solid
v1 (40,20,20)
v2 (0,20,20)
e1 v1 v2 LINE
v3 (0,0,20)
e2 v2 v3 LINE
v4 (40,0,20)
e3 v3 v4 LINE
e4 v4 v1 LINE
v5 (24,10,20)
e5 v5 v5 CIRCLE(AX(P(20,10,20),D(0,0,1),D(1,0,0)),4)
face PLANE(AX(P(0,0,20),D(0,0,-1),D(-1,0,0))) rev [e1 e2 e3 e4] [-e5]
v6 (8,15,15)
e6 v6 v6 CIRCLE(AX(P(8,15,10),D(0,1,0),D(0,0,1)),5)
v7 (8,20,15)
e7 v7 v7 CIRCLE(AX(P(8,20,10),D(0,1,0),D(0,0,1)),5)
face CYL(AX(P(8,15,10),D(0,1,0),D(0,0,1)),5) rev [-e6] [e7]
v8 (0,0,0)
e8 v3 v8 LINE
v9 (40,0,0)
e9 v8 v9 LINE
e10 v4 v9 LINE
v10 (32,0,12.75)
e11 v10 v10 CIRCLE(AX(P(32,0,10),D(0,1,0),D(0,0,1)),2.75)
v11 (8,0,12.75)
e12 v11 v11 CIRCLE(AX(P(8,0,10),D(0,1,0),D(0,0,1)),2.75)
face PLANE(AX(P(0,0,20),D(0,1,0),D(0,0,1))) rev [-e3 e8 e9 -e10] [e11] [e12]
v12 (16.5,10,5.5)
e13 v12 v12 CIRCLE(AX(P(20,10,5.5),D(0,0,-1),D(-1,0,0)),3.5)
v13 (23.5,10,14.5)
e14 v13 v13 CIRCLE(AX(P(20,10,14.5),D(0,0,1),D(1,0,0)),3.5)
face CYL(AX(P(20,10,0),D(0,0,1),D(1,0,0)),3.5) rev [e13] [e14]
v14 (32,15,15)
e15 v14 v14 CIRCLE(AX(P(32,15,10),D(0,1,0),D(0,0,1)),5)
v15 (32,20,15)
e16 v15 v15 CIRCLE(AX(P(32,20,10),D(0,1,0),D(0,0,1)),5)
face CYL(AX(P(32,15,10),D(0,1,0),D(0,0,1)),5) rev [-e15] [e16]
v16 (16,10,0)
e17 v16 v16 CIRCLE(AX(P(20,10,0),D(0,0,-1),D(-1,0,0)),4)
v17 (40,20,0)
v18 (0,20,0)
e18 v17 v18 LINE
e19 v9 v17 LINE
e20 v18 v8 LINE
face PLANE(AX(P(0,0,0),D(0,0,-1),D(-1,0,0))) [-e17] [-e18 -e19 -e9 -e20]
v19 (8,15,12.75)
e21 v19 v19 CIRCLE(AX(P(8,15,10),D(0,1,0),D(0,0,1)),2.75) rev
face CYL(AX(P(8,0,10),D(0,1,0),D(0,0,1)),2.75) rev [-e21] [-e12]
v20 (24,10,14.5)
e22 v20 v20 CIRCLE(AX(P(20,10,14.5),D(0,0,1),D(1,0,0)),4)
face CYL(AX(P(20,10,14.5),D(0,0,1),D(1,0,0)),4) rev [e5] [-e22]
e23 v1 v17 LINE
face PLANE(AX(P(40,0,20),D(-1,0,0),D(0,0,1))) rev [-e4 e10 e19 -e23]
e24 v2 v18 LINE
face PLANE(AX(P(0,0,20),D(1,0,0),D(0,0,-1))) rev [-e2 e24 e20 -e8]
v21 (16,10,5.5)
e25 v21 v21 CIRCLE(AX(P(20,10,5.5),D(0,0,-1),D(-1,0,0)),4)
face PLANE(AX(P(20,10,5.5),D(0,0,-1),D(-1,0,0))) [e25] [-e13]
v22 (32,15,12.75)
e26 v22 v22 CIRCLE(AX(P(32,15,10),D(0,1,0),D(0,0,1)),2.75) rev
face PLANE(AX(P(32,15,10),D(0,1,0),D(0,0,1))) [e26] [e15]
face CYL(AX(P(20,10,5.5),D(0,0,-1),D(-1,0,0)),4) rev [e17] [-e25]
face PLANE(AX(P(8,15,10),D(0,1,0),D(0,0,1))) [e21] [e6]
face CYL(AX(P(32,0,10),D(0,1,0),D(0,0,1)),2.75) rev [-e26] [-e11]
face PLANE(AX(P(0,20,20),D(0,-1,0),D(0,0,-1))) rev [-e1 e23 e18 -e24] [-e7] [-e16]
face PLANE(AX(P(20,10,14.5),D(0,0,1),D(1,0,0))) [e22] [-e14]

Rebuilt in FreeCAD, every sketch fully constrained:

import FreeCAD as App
import Part
import Sketcher
from FreeCAD import Vector
Q = App.Units.Quantity


def add_polygon(sketch, points):
    """Adds a closed chain of lines whose ends are joined by coincident constraints."""
    first, n = sketch.GeometryCount, len(points)
    for a, b in zip(points, points[1:] + points[:1]):
        sketch.addGeometry(Part.LineSegment(App.Vector(*a, 0), App.Vector(*b, 0)), False)
    for i in range(n):
        sketch.addConstraint(Sketcher.Constraint("Coincident", first + i, 2, first + (i + 1) % n, 1))

doc = App.newDocument("Part")
body = doc.addObject("PartDesign::Body", "Body")

sketch1 = body.newObject("Sketcher::SketchObject", "Sketch")
sketch1.AttachmentSupport = (doc.getObject("XY_Plane"), [""])
sketch1.MapMode = "FlatFace"
add_polygon(sketch1, [(0, 20), (0, 0), (40, 0), (40, 20)])
sketch1.addConstraint(Sketcher.Constraint("Vertical", 0))
sketch1.addConstraint(Sketcher.Constraint("Horizontal", 1))
sketch1.addConstraint(Sketcher.Constraint("Vertical", 2))
sketch1.addConstraint(Sketcher.Constraint("Horizontal", 3))
sketch1.addConstraint(Sketcher.Constraint("Coincident", 0, 2, -1, 1))
sketch1.addConstraint(Sketcher.Constraint("DistanceX", 1, 1, 1, 2, Q("40 mm")))
sketch1.addConstraint(Sketcher.Constraint("DistanceY", 0, 2, 0, 1, Q("20 mm")))
pad1 = body.newObject("PartDesign::Pad", "Pad")
pad1.Profile = sketch1
pad1.Length = 20

sketch2 = body.newObject("Sketcher::SketchObject", "Sketch001")
sketch2.AttachmentSupport = (doc.getObject("XZ_Plane"), [""])
sketch2.MapMode = "FlatFace"
sketch2.AttachmentOffset = App.Placement(Vector(0, 0, -20), App.Rotation())
sketch2.addGeometry(Part.Circle(Vector(8, 10, 0), Vector(0, 0, 1), 2.8), False)
sketch2.addGeometry(Part.Circle(Vector(32, 10, 0), Vector(0, 0, 1), 2.8), False)
sketch2.addConstraint(Sketcher.Constraint("Equal", 0, 1))
sketch2.addConstraint(Sketcher.Constraint("Horizontal", 0, 3, 1, 3))
sketch2.addConstraint(Sketcher.Constraint("Diameter", 0, Q("5.5 mm")))
sketch2.addConstraint(Sketcher.Constraint("DistanceX", -1, 1, 0, 3, Q("8 mm")))
sketch2.addConstraint(Sketcher.Constraint("DistanceY", -1, 1, 0, 3, Q("10 mm")))
sketch2.addConstraint(Sketcher.Constraint("DistanceX", -1, 1, 1, 3, Q("32 mm")))
pocket1 = body.newObject("PartDesign::Pocket", "Pocket")
pocket1.Profile = sketch2
pocket1.Type = "ThroughAll"
pocket1.Reversed = True

sketch3 = body.newObject("Sketcher::SketchObject", "Sketch002")
sketch3.AttachmentSupport = (doc.getObject("XZ_Plane"), [""])
sketch3.MapMode = "FlatFace"
sketch3.AttachmentOffset = App.Placement(Vector(0, 0, -20), App.Rotation())
sketch3.addGeometry(Part.Circle(Vector(8, 10, 0), Vector(0, 0, 1), 5), False)
sketch3.addGeometry(Part.Circle(Vector(32, 10, 0), Vector(0, 0, 1), 5), False)
sketch3.addConstraint(Sketcher.Constraint("Equal", 0, 1))
sketch3.addConstraint(Sketcher.Constraint("Horizontal", 0, 3, 1, 3))
sketch3.addConstraint(Sketcher.Constraint("Diameter", 0, Q("10 mm")))
sketch3.addConstraint(Sketcher.Constraint("DistanceX", -1, 1, 0, 3, Q("8 mm")))
sketch3.addConstraint(Sketcher.Constraint("DistanceY", -1, 1, 0, 3, Q("10 mm")))
sketch3.addConstraint(Sketcher.Constraint("DistanceX", -1, 1, 1, 3, Q("32 mm")))
pocket2 = body.newObject("PartDesign::Pocket", "Pocket001")
pocket2.Profile = sketch3
pocket2.Length = 5
pocket2.Reversed = True

sketch4 = body.newObject("Sketcher::SketchObject", "Sketch003")
sketch4.AttachmentSupport = (doc.getObject("XY_Plane"), [""])
sketch4.MapMode = "FlatFace"
sketch4.AttachmentOffset = App.Placement(Vector(0, 0, 20), App.Rotation())
sketch4.addGeometry(Part.Circle(Vector(20, 10, 0), Vector(0, 0, 1), 4), False)
sketch4.addConstraint(Sketcher.Constraint("Diameter", 0, Q("8 mm")))
sketch4.addConstraint(Sketcher.Constraint("DistanceX", -1, 1, 0, 3, Q("20 mm")))
sketch4.addConstraint(Sketcher.Constraint("DistanceY", -1, 1, 0, 3, Q("10 mm")))
pocket3 = body.newObject("PartDesign::Pocket", "Pocket002")
pocket3.Profile = sketch4
pocket3.Length = 5.5

sketch5 = body.newObject("Sketcher::SketchObject", "Sketch004")
sketch5.AttachmentSupport = (doc.getObject("XY_Plane"), [""])
sketch5.MapMode = "FlatFace"
sketch5.addGeometry(Part.Circle(Vector(20, 10, 0), Vector(0, 0, 1), 4), False)
sketch5.addConstraint(Sketcher.Constraint("Diameter", 0, Q("8 mm")))
sketch5.addConstraint(Sketcher.Constraint("DistanceX", -1, 1, 0, 3, Q("20 mm")))
sketch5.addConstraint(Sketcher.Constraint("DistanceY", -1, 1, 0, 3, Q("10 mm")))
pocket4 = body.newObject("PartDesign::Pocket", "Pocket003")
pocket4.Profile = sketch5
pocket4.Length = 5.5
pocket4.Reversed = True

sketch6 = body.newObject("Sketcher::SketchObject", "Sketch005")
sketch6.AttachmentSupport = (doc.getObject("XY_Plane"), [""])
sketch6.MapMode = "FlatFace"
sketch6.AttachmentOffset = App.Placement(Vector(0, 0, 14.5), App.Rotation())
sketch6.addGeometry(Part.Circle(Vector(20, 10, 0), Vector(0, 0, 1), 3.5), False)
sketch6.addConstraint(Sketcher.Constraint("Diameter", 0, Q("7 mm")))
sketch6.addConstraint(Sketcher.Constraint("DistanceX", -1, 1, 0, 3, Q("20 mm")))
sketch6.addConstraint(Sketcher.Constraint("DistanceY", -1, 1, 0, 3, Q("10 mm")))
pocket5 = body.newObject("PartDesign::Pocket", "Pocket004")
pocket5.Profile = sketch6
pocket5.Type = "ThroughAll"

doc.recompute()
